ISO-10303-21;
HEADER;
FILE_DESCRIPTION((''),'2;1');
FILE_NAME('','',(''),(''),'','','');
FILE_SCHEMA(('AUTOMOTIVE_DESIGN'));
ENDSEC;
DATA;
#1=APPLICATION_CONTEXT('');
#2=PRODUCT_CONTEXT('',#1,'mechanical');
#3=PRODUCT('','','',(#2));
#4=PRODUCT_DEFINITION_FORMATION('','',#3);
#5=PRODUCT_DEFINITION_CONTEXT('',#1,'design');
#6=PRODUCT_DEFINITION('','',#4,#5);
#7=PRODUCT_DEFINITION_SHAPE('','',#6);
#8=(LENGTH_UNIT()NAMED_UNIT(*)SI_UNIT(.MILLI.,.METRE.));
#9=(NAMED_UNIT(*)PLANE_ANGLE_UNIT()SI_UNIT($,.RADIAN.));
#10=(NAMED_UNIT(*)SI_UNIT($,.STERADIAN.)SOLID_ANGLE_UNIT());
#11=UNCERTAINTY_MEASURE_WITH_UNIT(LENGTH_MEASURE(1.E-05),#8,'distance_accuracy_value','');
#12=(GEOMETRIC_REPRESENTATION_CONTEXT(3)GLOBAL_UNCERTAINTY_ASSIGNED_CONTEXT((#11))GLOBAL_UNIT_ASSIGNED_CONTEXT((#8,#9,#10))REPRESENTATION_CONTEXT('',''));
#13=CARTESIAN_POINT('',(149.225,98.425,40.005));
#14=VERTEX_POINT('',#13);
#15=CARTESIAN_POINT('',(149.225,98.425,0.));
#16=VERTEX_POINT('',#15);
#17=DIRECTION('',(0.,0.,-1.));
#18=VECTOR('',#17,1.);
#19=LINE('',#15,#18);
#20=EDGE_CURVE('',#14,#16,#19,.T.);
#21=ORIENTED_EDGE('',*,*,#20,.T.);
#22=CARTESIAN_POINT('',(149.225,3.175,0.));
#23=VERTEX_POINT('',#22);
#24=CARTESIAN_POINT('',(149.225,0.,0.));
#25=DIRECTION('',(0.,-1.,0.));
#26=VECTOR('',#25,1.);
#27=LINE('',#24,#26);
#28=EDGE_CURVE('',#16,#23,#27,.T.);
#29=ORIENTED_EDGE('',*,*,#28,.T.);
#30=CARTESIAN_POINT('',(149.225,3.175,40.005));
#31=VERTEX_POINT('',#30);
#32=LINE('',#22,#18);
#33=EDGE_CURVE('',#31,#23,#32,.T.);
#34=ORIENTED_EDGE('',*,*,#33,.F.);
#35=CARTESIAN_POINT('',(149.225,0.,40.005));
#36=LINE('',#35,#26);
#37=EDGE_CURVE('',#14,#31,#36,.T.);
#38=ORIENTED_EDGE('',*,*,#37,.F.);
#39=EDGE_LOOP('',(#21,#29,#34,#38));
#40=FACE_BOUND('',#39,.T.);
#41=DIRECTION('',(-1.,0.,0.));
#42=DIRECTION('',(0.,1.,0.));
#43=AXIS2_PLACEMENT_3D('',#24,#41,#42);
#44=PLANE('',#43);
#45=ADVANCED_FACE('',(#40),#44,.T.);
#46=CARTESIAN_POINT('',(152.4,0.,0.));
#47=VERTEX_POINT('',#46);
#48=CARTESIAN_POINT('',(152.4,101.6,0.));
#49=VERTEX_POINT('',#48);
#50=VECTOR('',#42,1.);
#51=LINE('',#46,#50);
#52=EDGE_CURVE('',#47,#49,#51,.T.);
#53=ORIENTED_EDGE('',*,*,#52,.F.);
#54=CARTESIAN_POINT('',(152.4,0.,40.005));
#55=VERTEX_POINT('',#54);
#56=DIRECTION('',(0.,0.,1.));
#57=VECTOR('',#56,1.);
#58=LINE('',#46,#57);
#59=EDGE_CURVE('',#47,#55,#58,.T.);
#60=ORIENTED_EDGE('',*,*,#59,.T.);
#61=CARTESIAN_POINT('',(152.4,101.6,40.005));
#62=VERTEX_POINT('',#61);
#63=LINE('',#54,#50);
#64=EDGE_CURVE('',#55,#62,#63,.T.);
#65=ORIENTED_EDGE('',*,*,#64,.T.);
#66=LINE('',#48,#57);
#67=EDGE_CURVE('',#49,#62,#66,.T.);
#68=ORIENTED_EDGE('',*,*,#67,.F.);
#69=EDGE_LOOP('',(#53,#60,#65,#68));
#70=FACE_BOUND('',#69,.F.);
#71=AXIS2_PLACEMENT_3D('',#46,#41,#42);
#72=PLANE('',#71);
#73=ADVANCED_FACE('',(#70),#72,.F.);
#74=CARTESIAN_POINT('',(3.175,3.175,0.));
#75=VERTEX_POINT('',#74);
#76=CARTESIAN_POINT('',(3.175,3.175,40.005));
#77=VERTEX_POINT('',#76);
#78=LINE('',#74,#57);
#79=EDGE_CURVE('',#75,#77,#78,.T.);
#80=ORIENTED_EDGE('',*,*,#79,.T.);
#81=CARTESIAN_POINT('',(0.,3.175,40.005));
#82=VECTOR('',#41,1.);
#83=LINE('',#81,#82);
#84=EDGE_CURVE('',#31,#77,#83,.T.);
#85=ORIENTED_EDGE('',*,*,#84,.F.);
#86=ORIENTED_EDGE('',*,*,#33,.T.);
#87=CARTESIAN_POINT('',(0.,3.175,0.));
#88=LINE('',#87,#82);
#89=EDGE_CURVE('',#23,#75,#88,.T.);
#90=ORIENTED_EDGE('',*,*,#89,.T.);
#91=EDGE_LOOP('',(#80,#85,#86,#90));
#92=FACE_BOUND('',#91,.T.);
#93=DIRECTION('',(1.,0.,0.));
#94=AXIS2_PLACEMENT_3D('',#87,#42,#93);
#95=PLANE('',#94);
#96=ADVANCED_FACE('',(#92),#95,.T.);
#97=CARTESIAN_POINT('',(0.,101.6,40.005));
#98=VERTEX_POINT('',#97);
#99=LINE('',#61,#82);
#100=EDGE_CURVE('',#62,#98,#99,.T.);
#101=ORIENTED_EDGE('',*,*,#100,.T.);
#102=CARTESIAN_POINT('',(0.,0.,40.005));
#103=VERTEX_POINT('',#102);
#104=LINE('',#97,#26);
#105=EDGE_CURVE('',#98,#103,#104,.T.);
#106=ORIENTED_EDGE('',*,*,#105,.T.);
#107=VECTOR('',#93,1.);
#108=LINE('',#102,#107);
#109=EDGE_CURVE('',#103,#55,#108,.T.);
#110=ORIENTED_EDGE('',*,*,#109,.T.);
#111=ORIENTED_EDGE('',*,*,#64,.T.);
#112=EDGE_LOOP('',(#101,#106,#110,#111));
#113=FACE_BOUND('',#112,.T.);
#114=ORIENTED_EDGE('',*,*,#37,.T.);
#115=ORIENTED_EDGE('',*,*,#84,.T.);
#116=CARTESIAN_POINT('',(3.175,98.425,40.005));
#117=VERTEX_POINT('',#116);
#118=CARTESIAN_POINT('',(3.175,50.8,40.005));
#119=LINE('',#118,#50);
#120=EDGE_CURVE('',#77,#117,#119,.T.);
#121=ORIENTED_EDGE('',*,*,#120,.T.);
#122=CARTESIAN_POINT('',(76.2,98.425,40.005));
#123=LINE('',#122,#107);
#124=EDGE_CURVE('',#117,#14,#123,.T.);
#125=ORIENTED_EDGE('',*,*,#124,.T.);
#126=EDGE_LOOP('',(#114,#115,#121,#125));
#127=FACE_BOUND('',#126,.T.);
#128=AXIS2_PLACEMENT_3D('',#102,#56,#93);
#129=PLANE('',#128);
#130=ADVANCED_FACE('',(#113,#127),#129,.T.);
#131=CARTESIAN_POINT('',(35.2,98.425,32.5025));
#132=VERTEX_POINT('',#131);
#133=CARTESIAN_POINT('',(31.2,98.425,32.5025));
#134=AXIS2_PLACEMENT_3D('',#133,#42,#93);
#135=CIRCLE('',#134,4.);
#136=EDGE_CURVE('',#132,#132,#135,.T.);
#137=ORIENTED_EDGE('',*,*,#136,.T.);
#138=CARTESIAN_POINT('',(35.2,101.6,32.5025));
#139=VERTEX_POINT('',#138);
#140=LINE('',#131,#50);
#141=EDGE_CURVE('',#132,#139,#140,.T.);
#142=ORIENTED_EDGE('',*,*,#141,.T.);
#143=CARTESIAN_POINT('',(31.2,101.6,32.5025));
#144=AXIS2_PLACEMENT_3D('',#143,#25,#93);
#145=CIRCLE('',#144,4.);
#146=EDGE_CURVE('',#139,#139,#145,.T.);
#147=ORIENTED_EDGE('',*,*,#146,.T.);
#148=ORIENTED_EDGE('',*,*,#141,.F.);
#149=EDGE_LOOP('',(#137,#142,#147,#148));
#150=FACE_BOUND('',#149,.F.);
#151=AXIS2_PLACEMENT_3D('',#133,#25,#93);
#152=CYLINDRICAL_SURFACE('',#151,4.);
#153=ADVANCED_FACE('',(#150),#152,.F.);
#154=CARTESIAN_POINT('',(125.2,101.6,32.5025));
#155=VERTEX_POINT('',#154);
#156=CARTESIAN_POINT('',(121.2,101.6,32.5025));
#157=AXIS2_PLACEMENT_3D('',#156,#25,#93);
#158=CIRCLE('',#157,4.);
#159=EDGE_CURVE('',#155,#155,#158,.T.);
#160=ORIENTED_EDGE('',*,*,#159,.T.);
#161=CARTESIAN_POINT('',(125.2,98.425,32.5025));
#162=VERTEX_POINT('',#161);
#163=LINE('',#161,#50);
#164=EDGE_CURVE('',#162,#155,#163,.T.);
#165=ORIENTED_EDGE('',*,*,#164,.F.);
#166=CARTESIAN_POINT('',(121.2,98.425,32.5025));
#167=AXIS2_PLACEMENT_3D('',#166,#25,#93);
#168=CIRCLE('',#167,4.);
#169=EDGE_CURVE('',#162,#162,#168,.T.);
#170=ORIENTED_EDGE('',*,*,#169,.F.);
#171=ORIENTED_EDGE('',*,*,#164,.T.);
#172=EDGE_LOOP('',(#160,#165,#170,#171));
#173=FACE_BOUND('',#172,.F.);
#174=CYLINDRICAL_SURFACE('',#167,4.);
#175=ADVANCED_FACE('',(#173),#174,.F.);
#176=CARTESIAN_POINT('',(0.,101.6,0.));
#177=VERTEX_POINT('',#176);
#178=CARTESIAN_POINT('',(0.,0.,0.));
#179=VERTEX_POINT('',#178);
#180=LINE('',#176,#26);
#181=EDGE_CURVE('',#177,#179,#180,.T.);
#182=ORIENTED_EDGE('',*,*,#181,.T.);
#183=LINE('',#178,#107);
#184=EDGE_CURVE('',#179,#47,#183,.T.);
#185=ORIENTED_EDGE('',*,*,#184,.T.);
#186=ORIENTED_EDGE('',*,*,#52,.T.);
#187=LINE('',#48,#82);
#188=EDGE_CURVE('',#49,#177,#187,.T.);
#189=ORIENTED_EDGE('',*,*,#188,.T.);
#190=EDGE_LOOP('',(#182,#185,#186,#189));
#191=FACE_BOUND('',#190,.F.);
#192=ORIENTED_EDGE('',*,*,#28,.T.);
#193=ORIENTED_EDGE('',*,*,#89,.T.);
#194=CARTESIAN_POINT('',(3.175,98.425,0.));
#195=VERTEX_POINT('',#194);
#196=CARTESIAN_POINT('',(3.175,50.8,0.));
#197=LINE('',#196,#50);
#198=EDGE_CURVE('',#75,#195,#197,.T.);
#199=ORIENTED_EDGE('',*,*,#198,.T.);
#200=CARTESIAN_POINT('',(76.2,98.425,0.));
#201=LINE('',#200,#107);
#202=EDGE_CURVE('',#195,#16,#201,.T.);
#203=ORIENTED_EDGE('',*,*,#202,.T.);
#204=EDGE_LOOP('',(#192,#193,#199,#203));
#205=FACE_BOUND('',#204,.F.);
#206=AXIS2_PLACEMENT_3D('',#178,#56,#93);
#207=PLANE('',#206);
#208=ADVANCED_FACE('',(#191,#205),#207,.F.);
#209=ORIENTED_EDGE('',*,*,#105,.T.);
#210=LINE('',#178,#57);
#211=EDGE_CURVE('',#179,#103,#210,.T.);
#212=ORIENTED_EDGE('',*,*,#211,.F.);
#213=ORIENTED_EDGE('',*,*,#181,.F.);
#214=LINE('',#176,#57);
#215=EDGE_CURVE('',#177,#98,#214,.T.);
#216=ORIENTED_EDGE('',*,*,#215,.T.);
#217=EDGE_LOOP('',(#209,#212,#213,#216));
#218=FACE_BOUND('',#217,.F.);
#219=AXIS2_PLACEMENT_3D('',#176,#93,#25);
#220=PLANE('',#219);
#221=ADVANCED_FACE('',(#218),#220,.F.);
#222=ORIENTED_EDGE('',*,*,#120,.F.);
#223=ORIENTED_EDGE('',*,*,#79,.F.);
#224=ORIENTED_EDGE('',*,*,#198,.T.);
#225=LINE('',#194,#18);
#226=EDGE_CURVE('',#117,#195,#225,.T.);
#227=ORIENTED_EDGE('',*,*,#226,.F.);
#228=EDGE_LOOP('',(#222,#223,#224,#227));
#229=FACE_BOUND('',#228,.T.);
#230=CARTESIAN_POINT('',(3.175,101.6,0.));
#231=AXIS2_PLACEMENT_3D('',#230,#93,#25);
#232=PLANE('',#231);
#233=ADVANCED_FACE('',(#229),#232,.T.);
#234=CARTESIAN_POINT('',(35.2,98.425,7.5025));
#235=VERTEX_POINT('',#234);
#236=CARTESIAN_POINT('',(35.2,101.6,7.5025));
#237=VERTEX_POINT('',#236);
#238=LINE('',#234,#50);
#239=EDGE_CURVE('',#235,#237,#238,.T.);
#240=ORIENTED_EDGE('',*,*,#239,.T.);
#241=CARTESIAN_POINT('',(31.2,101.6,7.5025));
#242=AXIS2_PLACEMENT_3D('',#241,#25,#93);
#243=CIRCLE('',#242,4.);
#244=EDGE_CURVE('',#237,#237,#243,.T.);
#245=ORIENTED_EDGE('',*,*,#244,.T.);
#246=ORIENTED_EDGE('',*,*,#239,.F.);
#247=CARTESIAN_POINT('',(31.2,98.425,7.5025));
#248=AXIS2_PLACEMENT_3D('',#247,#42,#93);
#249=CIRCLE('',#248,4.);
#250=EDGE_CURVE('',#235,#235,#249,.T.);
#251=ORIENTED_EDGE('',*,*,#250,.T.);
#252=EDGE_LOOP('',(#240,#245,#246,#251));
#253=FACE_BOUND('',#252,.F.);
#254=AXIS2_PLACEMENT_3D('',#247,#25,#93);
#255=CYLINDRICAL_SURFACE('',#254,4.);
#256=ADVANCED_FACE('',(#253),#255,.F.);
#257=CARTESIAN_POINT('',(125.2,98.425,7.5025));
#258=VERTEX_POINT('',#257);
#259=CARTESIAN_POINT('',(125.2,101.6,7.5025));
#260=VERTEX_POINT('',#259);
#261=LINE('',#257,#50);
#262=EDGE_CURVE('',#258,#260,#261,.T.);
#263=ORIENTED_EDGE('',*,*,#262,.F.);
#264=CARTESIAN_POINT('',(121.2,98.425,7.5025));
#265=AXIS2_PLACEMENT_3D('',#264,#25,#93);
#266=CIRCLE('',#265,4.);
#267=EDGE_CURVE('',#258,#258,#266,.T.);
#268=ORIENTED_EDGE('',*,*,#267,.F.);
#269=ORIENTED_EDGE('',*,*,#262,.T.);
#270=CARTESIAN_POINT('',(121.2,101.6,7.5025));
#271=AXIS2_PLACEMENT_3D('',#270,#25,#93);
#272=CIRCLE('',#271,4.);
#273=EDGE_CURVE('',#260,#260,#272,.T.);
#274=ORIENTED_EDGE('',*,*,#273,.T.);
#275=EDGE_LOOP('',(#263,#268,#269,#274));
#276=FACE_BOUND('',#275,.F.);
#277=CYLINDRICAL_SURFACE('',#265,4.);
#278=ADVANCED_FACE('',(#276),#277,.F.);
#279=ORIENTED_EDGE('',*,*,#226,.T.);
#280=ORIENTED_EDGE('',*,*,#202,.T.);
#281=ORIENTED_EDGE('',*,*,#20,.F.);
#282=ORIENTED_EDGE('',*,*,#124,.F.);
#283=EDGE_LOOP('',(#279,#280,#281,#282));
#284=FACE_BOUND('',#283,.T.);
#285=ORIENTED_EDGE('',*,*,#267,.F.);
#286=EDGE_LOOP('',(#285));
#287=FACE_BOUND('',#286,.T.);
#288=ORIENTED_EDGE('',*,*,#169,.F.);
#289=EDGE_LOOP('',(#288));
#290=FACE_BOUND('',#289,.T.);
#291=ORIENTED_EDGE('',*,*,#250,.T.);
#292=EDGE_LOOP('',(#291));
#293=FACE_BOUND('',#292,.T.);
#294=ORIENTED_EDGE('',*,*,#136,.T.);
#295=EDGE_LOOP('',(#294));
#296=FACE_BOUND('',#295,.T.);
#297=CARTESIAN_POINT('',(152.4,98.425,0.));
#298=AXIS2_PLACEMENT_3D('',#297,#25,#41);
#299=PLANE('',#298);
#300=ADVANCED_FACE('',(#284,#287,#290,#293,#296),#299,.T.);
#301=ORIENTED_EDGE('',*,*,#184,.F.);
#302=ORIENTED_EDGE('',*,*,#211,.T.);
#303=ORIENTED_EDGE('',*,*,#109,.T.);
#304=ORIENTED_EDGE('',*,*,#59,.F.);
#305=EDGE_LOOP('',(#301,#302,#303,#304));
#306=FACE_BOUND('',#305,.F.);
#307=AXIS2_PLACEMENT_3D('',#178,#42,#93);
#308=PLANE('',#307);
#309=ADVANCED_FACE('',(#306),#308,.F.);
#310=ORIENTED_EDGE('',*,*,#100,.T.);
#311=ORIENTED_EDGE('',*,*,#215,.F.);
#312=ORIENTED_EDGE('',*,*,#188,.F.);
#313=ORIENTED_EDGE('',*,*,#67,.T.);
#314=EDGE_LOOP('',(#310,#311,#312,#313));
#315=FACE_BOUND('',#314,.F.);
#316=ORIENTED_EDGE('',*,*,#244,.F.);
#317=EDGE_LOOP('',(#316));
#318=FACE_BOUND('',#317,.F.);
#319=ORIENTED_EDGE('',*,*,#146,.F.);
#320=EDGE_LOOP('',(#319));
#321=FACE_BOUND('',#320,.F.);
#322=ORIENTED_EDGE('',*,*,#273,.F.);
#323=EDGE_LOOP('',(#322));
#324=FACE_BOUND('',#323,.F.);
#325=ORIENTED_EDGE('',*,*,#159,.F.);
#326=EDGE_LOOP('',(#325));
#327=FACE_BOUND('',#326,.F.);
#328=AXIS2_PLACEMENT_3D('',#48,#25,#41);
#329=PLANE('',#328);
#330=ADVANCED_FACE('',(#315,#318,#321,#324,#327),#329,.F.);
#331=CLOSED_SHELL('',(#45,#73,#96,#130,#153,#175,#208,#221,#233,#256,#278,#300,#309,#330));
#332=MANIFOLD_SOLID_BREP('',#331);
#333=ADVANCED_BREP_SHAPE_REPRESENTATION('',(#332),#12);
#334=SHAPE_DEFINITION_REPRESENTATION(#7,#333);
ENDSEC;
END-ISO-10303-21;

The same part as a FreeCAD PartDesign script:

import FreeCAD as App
import Part
import Sketcher
Q = App.Units.Quantity


def faces_at(feature, points):
    """Names of the faces that lie closest to the given points."""
    faces = feature.Shape.Faces
    near = lambda p: min(range(len(faces)), key=lambda i: faces[i].distToShape(Part.Vertex(*p))[0])
    return sorted({f"Face{near(p) + 1}" for p in points})

doc = App.newDocument("Part")
body = doc.addObject("PartDesign::Body", "Body")

sketch1 = body.newObject("Sketcher::SketchObject", "Sketch")
sketch1.AttachmentSupport = (doc.getObject("XY_Plane"), [""])
sketch1.MapMode = "FlatFace"
sketch1.addGeometry(Part.LineSegment(App.Vector(0, 101.6, 0), App.Vector(0, 0, 0)), False)
sketch1.addGeometry(Part.LineSegment(App.Vector(0, 0, 0), App.Vector(152.4, 0, 0)), False)
sketch1.addGeometry(Part.LineSegment(App.Vector(152.4, 0, 0), App.Vector(152.4, 101.6, 0)), False)
sketch1.addGeometry(Part.LineSegment(App.Vector(152.4, 101.6, 0), App.Vector(0, 101.6, 0)), False)
sketch1.addConstraint(Sketcher.Constraint("Coincident", 0, 2, 1, 1))
sketch1.addConstraint(Sketcher.Constraint("Coincident", 1, 2, 2, 1))
sketch1.addConstraint(Sketcher.Constraint("Coincident", 2, 2, 3, 1))
sketch1.addConstraint(Sketcher.Constraint("Coincident", 3, 2, 0, 1))
sketch1.addConstraint(Sketcher.Constraint("Vertical", 0))
sketch1.addConstraint(Sketcher.Constraint("Horizontal", 1))
sketch1.addConstraint(Sketcher.Constraint("Vertical", 2))
sketch1.addConstraint(Sketcher.Constraint("Horizontal", 3))
sketch1.addConstraint(Sketcher.Constraint("Coincident", 0, 2, -1, 1))
sketch1.addConstraint(Sketcher.Constraint("DistanceX", 1, 1, 1, 2, Q("6 in")))
sketch1.addConstraint(Sketcher.Constraint("DistanceY", 0, 2, 0, 1, Q("4 in")))
pad1 = body.newObject("PartDesign::Pad", "Pad")
pad1.Profile = sketch1
pad1.Length = Q("1.575 in")
doc.recompute()

thickness = body.newObject("PartDesign::Thickness", "Thickness")
thickness.Base = (pad1, faces_at(pad1, [(50.8, 67.733, 0), (50.8, 67.733, 40.005)]))
thickness.Value = Q("0.125 in")
thickness.Reversed = True
thickness.Join = "Intersection"

sketch2 = body.newObject("Sketcher::SketchObject", "Sketch001")
sketch2.AttachmentSupport = (doc.getObject("XZ_Plane"), [""])
sketch2.MapMode = "FlatFace"
sketch2.AttachmentOffset = App.Placement(App.Vector(0, 0, -3.875 * 25.4), App.Rotation())
sketch2.addGeometry(Part.Circle(App.Vector(121.2, 7.5025, 0), App.Vector(0, 0, 1), 4), False)
sketch2.addGeometry(Part.Circle(App.Vector(31.2, 7.5025, 0), App.Vector(0, 0, 1), 4), False)
sketch2.addGeometry(Part.Circle(App.Vector(31.2, 32.5025, 0), App.Vector(0, 0, 1), 4), False)
sketch2.addGeometry(Part.Circle(App.Vector(121.2, 32.5025, 0), App.Vector(0, 0, 1), 4), False)
sketch2.addConstraint(Sketcher.Constraint("Equal", 0, 1))
sketch2.addConstraint(Sketcher.Constraint("Equal", 1, 2))
sketch2.addConstraint(Sketcher.Constraint("Equal", 2, 3))
sketch2.addConstraint(Sketcher.Constraint("Horizontal", 0, 3, 1, 3))
sketch2.addConstraint(Sketcher.Constraint("Horizontal", 2, 3, 3, 3))
sketch2.addConstraint(Sketcher.Constraint("Vertical", 1, 3, 2, 3))
sketch2.addConstraint(Sketcher.Constraint("Vertical", 0, 3, 3, 3))
sketch2.addConstraint(Sketcher.Constraint("Diameter", 0, 8.0))
sketch2.addConstraint(Sketcher.Constraint("DistanceX", 1, 3, 0, 3, Q("3.5433 in")))
sketch2.addConstraint(Sketcher.Constraint("DistanceY", 1, 3, 2, 3, 25.0))
sketch2.addConstraint(Sketcher.Constraint("DistanceX", -1, 1, 0, 3, 121.2))
sketch2.addConstraint(Sketcher.Constraint("DistanceY", -1, 1, 0, 3, 7.5025))
pocket1 = body.newObject("PartDesign::Pocket", "Pocket")
pocket1.Profile = sketch2
pocket1.Length = Q("0.125 in")

doc.recompute()
